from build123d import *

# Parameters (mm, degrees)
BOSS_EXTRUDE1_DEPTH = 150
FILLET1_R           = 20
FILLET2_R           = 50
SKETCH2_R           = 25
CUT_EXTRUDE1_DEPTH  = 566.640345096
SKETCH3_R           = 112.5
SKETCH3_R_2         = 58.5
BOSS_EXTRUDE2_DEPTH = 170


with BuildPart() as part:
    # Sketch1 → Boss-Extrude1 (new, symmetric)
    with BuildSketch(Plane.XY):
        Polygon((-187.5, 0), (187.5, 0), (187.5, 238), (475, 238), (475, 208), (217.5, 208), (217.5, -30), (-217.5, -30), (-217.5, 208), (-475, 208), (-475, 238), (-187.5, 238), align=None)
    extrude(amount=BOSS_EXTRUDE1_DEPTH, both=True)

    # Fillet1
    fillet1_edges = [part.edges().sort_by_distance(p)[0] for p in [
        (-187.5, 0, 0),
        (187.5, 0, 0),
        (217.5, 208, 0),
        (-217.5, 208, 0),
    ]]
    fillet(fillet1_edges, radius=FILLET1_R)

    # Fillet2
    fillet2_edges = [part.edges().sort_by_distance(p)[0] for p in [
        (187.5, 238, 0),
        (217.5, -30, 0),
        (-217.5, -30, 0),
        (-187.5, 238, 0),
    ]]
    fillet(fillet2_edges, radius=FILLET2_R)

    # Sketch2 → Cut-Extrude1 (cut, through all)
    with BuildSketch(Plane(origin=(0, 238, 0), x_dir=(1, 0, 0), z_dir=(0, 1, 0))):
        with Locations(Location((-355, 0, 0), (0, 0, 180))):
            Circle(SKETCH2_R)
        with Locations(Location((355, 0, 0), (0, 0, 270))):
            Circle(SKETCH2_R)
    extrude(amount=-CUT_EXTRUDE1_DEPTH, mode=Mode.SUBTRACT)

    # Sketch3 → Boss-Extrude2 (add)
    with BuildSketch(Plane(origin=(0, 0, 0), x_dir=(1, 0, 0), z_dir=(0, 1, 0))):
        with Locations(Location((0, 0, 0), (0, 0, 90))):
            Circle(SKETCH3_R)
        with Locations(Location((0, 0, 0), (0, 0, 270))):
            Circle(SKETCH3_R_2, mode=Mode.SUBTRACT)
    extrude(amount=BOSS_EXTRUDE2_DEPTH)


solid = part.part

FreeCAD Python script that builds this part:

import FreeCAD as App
import Part
import Sketcher
Q = App.Units.Quantity


def edges_at(feature, points):
    """Names of the edges that pass closest to the given points."""
    edges = feature.Shape.Edges
    near = lambda p: min(range(len(edges)), key=lambda i: edges[i].distToShape(Part.Vertex(*p))[0])
    return sorted({f"Edge{near(p) + 1}" for p in points})


def add_polygon(sketch, points):
    """Adds a closed chain of lines whose ends are joined by coincident constraints."""
    first, n = sketch.GeometryCount, len(points)
    for a, b in zip(points, points[1:] + points[:1]):
        sketch.addGeometry(Part.LineSegment(App.Vector(*a, 0), App.Vector(*b, 0)), False)
    for i in range(n):
        sketch.addConstraint(Sketcher.Constraint("Coincident", first + i, 2, first + (i + 1) % n, 1))

doc = App.newDocument("Part")
params = doc.addObject("Spreadsheet::Sheet", "Params")
for row, (alias, value) in enumerate([
    ("sketch1_width", "375 mm"),
    ("sketch1_width2", "435 mm"),
    ("sketch1_height", "238 mm"),
    ("sketch1_height2", "30 mm"),
    ("sketch1_width3", "287.5 mm"),
    ("pad1_length", "300 mm"),
    ("fillet_radius", "20 mm"),
    ("fillet2_radius", "50 mm"),
    ("sketch2_diameter", "50 mm"),
    ("sketch3_diameter", "225 mm"),
    ("sketch3_diameter2", "117 mm"),
    ("pad2_length", "170 mm"),
], start=1):
    params.set(f"A{row}", alias)
    params.set(f"B{row}", "=" + value)
    params.setAlias(f"B{row}", alias)

body = doc.addObject("PartDesign::Body", "Body")

# Sketch on XY plane
sketch1 = body.newObject("Sketcher::SketchObject", "Sketch")
sketch1.AttachmentSupport = (doc.getObject("XY_Plane"), [""])
sketch1.MapMode = "FlatFace"
add_polygon(sketch1, [(188, 0), (-188, 0), (-188, 238), (-475, 238), (-475, 208), (-218, 208), (-218, -30), (218, -30), (218, 208), (475, 208), (475, 238), (188, 238)])  # lines 0-11
sketch1.addConstraint([
    Sketcher.Constraint("Horizontal", 0),
    Sketcher.Constraint("Vertical", 1),
    Sketcher.Constraint("Horizontal", 2),
    Sketcher.Constraint("Vertical", 3),
    Sketcher.Constraint("Horizontal", 4),
    Sketcher.Constraint("Vertical", 5),
    Sketcher.Constraint("Horizontal", 6),
    Sketcher.Constraint("Vertical", 7),
    Sketcher.Constraint("Horizontal", 8),
    Sketcher.Constraint("Vertical", 9),
    Sketcher.Constraint("Horizontal", 10),
    Sketcher.Constraint("Vertical", 11),
    Sketcher.Constraint("Symmetric", 0, 2, 11, 2, -1, 1),
    Sketcher.Constraint("Symmetric", 4, 2, 7, 2, -2),
    Sketcher.Constraint("Symmetric", 2, 2, 9, 2, -2),
    Sketcher.Constraint("Equal", 1, 5),
    Sketcher.Constraint("DistanceX", 0, 2, 0, 1, Q("375 mm")),
    Sketcher.Constraint("DistanceX", 6, 1, 6, 2, Q("435 mm")),
    Sketcher.Constraint("DistanceY", 1, 1, 1, 2, Q("238 mm")),
    Sketcher.Constraint("DistanceY", 3, 2, 3, 1, Q("30 mm")),
    Sketcher.Constraint("DistanceX", 2, 2, 2, 1, Q("287.5 mm")),
])
sketch1.setExpression("Constraints[28]", "Params.sketch1_width")
sketch1.setExpression("Constraints[29]", "Params.sketch1_width2")
sketch1.setExpression("Constraints[30]", "Params.sketch1_height")
sketch1.setExpression("Constraints[31]", "Params.sketch1_height2")
sketch1.setExpression("Constraints[32]", "Params.sketch1_width3")
pad1 = body.newObject("PartDesign::Pad", "Pad")
pad1.Profile = sketch1
pad1.setExpression("Length", "Params.pad1_length")
pad1.Midplane = True
doc.recompute()

fillet = body.newObject("PartDesign::Fillet", "Fillet")
fillet.Base = (pad1, edges_at(pad1, [
    (-187.5, 0, 0),
    (187.5, 0, 0),
    (217.5, 208, 0),
    (-217.5, 208, 0),
]))
fillet.setExpression("Radius", "Params.fillet_radius")
doc.recompute()

fillet2 = body.newObject("PartDesign::Fillet", "Fillet001")
fillet2.Base = (fillet, edges_at(fillet, [
    (187.5, 238, 0),
    (217.5, -30, 0),
    (-217.5, -30, 0),
    (-187.5, 238, 0),
]))
fillet2.setExpression("Radius", "Params.fillet2_radius")

# Sketch on XZ plane
sketch2 = body.newObject("Sketcher::SketchObject", "Sketch001")
sketch2.AttachmentSupport = (doc.getObject("XZ_Plane"), [""])
sketch2.MapMode = "FlatFace"
sketch2.AttachmentOffset = App.Placement(App.Vector(0, 0, -238), App.Rotation())
sketch2.addGeometry([
    Part.Circle(App.Vector(-355, 0, 0), App.Vector(0, 0, 1), 25),
    Part.Circle(App.Vector(355, 0, 0), App.Vector(0, 0, 1), 25),
], False)
sketch2.addConstraint([
    Sketcher.Constraint("Equal", 0, 1),
    Sketcher.Constraint("Symmetric", 0, 3, 1, 3, -1, 1),
    Sketcher.Constraint("PointOnObject", 0, 3, -1),
    Sketcher.Constraint("Diameter", 0, Q("50 mm")),
    Sketcher.Constraint("DistanceX", 0, 3, -1, 1, Q("355 mm")),
])
sketch2.setExpression("Constraints[3]", "Params.sketch2_diameter")
pocket1 = body.newObject("PartDesign::Pocket", "Pocket")
pocket1.Profile = sketch2
pocket1.Type = "ThroughAll"
pocket1.Reversed = True

# Sketch on XZ plane
sketch3 = body.newObject("Sketcher::SketchObject", "Sketch002")
sketch3.AttachmentSupport = (doc.getObject("XZ_Plane"), [""])
sketch3.MapMode = "FlatFace"
sketch3.addGeometry([
    Part.Circle(App.Vector(0, 0, 0), App.Vector(0, 0, 1), 112),
    Part.Circle(App.Vector(0, 0, 0), App.Vector(0, 0, 1), 58),
], False)
sketch3.addConstraint([
    Sketcher.Constraint("Coincident", 0, 3, -1, 1),
    Sketcher.Constraint("Coincident", 1, 3, -1, 1),
    Sketcher.Constraint("Diameter", 0, Q("225 mm")),
    Sketcher.Constraint("Diameter", 1, Q("117 mm")),
])
sketch3.setExpression("Constraints[2]", "Params.sketch3_diameter")
sketch3.setExpression("Constraints[3]", "Params.sketch3_diameter2")
pad2 = body.newObject("PartDesign::Pad", "Pad001")
pad2.Profile = sketch3
pad2.setExpression("Length", "Params.pad2_length")
pad2.Reversed = True

doc.recompute()
